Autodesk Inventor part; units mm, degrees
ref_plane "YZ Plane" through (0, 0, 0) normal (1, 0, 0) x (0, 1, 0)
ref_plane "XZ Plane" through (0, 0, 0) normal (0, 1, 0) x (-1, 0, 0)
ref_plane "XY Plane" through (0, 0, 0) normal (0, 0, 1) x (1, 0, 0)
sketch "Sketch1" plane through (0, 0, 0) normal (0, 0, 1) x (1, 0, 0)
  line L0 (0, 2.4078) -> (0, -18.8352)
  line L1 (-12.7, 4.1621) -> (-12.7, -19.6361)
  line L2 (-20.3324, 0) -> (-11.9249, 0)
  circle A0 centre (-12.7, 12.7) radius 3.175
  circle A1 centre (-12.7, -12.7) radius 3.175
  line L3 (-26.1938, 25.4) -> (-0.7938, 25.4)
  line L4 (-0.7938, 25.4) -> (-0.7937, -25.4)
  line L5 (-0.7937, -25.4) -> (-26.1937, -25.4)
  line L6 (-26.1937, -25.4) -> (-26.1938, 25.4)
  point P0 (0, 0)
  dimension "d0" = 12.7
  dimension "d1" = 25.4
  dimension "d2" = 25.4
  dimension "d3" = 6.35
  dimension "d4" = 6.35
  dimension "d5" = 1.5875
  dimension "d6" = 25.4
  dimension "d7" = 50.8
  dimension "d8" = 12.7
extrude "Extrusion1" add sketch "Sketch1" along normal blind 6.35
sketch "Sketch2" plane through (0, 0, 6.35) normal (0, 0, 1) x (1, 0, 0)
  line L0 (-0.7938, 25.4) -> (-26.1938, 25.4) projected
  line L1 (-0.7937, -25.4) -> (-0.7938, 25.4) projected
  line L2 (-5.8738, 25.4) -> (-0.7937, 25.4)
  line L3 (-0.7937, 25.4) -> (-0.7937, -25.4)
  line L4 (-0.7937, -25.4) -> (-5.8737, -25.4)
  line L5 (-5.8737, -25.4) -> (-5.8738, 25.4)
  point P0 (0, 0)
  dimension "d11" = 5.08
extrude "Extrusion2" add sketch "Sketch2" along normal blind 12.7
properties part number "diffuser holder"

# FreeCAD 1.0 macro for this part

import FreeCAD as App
import Part
import Sketcher
from FreeCAD import Vector
Q = App.Units.Quantity


def add_polygon(sketch, points):
    """Adds a closed chain of lines whose ends are joined by coincident constraints."""
    first, n = sketch.GeometryCount, len(points)
    for a, b in zip(points, points[1:] + points[:1]):
        sketch.addGeometry(Part.LineSegment(App.Vector(*a, 0), App.Vector(*b, 0)), False)
    for i in range(n):
        sketch.addConstraint(Sketcher.Constraint("Coincident", first + i, 2, first + (i + 1) % n, 1))

doc = App.newDocument("Part")
body = doc.addObject("PartDesign::Body", "Body")

# Sketch on XY plane
sketch1 = body.newObject("Sketcher::SketchObject", "Sketch")
sketch1.AttachmentSupport = (doc.getObject("XY_Plane"), [""])
sketch1.MapMode = "FlatFace"
add_polygon(sketch1, [(-0.8, 25.4), (-26.2, 25.4), (-26.2, -25.4), (-0.8, -25.4)])  # lines 0-3
sketch1.addGeometry(Part.Circle(Vector(-12.7, -12.7, 0), Vector(0, 0, 1), 3.2), False)  # 4
sketch1.addGeometry(Part.Circle(Vector(-12.7, 12.7, 0), Vector(0, 0, 1), 3.2), False)  # 5
sketch1.addConstraint(Sketcher.Constraint("Horizontal", 0))
sketch1.addConstraint(Sketcher.Constraint("Vertical", 1))
sketch1.addConstraint(Sketcher.Constraint("Horizontal", 2))
sketch1.addConstraint(Sketcher.Constraint("Vertical", 3))
sketch1.addConstraint(Sketcher.Constraint("Equal", 4, 5))
sketch1.addConstraint(Sketcher.Constraint("Symmetric", 4, 3, 5, 3, -1))
sketch1.addConstraint(Sketcher.Constraint("Diameter", 4, Q("0.25 in")))
sketch1.addConstraint(Sketcher.Constraint("DistanceX", 0, 2, 0, 1, Q("1 in")))
sketch1.addConstraint(Sketcher.Constraint("DistanceY", 1, 2, 1, 1, Q("2 in")))
sketch1.addConstraint(Sketcher.Constraint("DistanceY", -1, 1, 0, 2, Q("1 in")))
sketch1.addConstraint(Sketcher.Constraint("DistanceY", 4, 3, 5, 3, Q("1 in")))
sketch1.addConstraint(Sketcher.Constraint("DistanceX", 4, 3, -1, 1, Q("0.5 in")))
sketch1.addConstraint(Sketcher.Constraint("DistanceX", 0, 2, -1, 1, Q("1.031252 in")))
pad1 = body.newObject("PartDesign::Pad", "Pad")
pad1.Profile = sketch1
pad1.Length = Q("0.25 in")

# Sketch on XY plane
sketch2 = body.newObject("Sketcher::SketchObject", "Sketch001")
sketch2.AttachmentSupport = (doc.getObject("XY_Plane"), [""])
sketch2.MapMode = "FlatFace"
sketch2.AttachmentOffset = App.Placement(Vector(0, 0, 0.25 * 25.4), App.Rotation())
add_polygon(sketch2, [(-1, -25), (-1, 25), (-6, 25), (-6, -25)])  # lines 0-3
sketch2.addConstraint(Sketcher.Constraint("Vertical", 0))
sketch2.addConstraint(Sketcher.Constraint("Horizontal", 1))
sketch2.addConstraint(Sketcher.Constraint("Vertical", 2))
sketch2.addConstraint(Sketcher.Constraint("Horizontal", 3))
sketch2.addConstraint(Sketcher.Constraint("DistanceX", 1, 2, 1, 1, Q("0.2 in")))
sketch2.addConstraint(Sketcher.Constraint("DistanceY", 0, 1, 0, 2, Q("2 in")))
sketch2.addConstraint(Sketcher.Constraint("DistanceY", -1, 1, 0, 2, Q("1 in")))
sketch2.addConstraint(Sketcher.Constraint("DistanceX", 0, 2, -1, 1, Q("0.031252 in")))
pad2 = body.newObject("PartDesign::Pad", "Pad001")
pad2.Profile = sketch2
pad2.Length = Q("0.5 in")

doc.recompute()
